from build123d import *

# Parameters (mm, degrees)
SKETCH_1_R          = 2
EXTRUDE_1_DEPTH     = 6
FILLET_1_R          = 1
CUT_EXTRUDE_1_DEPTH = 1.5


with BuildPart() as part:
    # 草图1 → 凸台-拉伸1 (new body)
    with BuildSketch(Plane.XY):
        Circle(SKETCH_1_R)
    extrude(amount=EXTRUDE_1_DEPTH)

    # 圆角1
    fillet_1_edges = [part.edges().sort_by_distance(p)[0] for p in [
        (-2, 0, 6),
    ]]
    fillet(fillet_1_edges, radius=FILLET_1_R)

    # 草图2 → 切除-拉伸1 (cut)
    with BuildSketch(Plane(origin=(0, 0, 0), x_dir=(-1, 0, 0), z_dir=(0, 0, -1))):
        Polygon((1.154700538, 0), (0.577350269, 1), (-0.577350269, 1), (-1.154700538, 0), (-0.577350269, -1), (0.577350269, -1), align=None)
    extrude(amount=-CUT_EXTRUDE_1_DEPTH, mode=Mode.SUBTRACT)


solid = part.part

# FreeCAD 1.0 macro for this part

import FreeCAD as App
import Part
import Sketcher
Q = App.Units.Quantity


def edges_at(feature, points):
    """Names of the edges that pass closest to the given points."""
    edges = feature.Shape.Edges
    near = lambda p: min(range(len(edges)), key=lambda i: edges[i].distToShape(Part.Vertex(*p))[0])
    return sorted({f"Edge{near(p) + 1}" for p in points})

doc = App.newDocument("Part")
params = doc.addObject("Spreadsheet::Sheet", "Params")
for row, (alias, value) in enumerate([
    ("sketch1_diameter", "4 mm"),
    ("pad1_length", "6 mm"),
    ("fillet_radius", "1 mm"),
    ("pocket1_length", "1.5 mm"),
], start=1):
    params.set(f"A{row}", alias)
    params.set(f"B{row}", "=" + value)
    params.setAlias(f"B{row}", alias)

body = doc.addObject("PartDesign::Body", "Body")

sketch1 = body.newObject("Sketcher::SketchObject", "Sketch")
sketch1.AttachmentSupport = (doc.getObject("XY_Plane"), [""])
sketch1.MapMode = "FlatFace"
sketch1.addGeometry(Part.Circle(App.Vector(0, 0, 0), App.Vector(0, 0, 1), 2), False)
sketch1.addConstraint(Sketcher.Constraint("Coincident", 0, 3, -1, 1))
sketch1.addConstraint(Sketcher.Constraint("Diameter", 0, Q("4 mm")))
sketch1.setExpression("Constraints[1]", "Params.sketch1_diameter")
pad1 = body.newObject("PartDesign::Pad", "Pad")
pad1.Profile = sketch1
pad1.setExpression("Length", "Params.pad1_length")
doc.recompute()

fillet = body.newObject("PartDesign::Fillet", "Fillet")
fillet.Base = (pad1, edges_at(pad1, [(-2, 0, 6)]))
fillet.setExpression("Radius", "Params.fillet_radius")

sketch2 = body.newObject("Sketcher::SketchObject", "Sketch001")
sketch2.AttachmentSupport = (doc.getObject("XY_Plane"), [""])
sketch2.MapMode = "FlatFace"
sketch2.addGeometry(Part.LineSegment(App.Vector(-1.154701, 0, 0), App.Vector(-0.57735, 1, 0)), False)
sketch2.addGeometry(Part.LineSegment(App.Vector(-0.57735, 1, 0), App.Vector(0.57735, 1, 0)), False)
sketch2.addGeometry(Part.LineSegment(App.Vector(0.57735, 1, 0), App.Vector(1.154701, 0, 0)), False)
sketch2.addGeometry(Part.LineSegment(App.Vector(1.154701, 0, 0), App.Vector(0.57735, -1, 0)), False)
sketch2.addGeometry(Part.LineSegment(App.Vector(0.57735, -1, 0), App.Vector(-0.57735, -1, 0)), False)
sketch2.addGeometry(Part.LineSegment(App.Vector(-0.57735, -1, 0), App.Vector(-1.154701, 0, 0)), False)
sketch2.addConstraint(Sketcher.Constraint("Coincident", 0, 2, 1, 1))
sketch2.addConstraint(Sketcher.Constraint("Coincident", 1, 2, 2, 1))
sketch2.addConstraint(Sketcher.Constraint("Coincident", 2, 2, 3, 1))
sketch2.addConstraint(Sketcher.Constraint("Coincident", 3, 2, 4, 1))
sketch2.addConstraint(Sketcher.Constraint("Coincident", 4, 2, 5, 1))
sketch2.addConstraint(Sketcher.Constraint("Coincident", 5, 2, 0, 1))
sketch2.addConstraint(Sketcher.Constraint("Horizontal", 1))
sketch2.addConstraint(Sketcher.Constraint("Horizontal", 4))
sketch2.addConstraint(Sketcher.Constraint("Symmetric", 0, 2, 3, 2, -1, 1))
sketch2.addConstraint(Sketcher.Constraint("Symmetric", 2, 2, 5, 2, -1, 1))
sketch2.addConstraint(Sketcher.Constraint("PointOnObject", 2, 2, -1))
sketch2.addConstraint(Sketcher.Constraint("Parallel", 2, 5))
sketch2.addConstraint(Sketcher.Constraint("Vertical", 1, 2, 3, 2))
sketch2.addConstraint(Sketcher.Constraint("Angle", 0, Q("60 deg")))
sketch2.addConstraint(Sketcher.Constraint("DistanceY", -1, 1, 0, 2, Q("1 mm")))
sketch2.addConstraint(Sketcher.Constraint("DistanceX", 1, 1, 1, 2, Q("1.154701 mm")))
pocket1 = body.newObject("PartDesign::Pocket", "Pocket")
pocket1.Profile = sketch2
pocket1.setExpression("Length", "Params.pocket1_length")
pocket1.Reversed = True

doc.recompute()
